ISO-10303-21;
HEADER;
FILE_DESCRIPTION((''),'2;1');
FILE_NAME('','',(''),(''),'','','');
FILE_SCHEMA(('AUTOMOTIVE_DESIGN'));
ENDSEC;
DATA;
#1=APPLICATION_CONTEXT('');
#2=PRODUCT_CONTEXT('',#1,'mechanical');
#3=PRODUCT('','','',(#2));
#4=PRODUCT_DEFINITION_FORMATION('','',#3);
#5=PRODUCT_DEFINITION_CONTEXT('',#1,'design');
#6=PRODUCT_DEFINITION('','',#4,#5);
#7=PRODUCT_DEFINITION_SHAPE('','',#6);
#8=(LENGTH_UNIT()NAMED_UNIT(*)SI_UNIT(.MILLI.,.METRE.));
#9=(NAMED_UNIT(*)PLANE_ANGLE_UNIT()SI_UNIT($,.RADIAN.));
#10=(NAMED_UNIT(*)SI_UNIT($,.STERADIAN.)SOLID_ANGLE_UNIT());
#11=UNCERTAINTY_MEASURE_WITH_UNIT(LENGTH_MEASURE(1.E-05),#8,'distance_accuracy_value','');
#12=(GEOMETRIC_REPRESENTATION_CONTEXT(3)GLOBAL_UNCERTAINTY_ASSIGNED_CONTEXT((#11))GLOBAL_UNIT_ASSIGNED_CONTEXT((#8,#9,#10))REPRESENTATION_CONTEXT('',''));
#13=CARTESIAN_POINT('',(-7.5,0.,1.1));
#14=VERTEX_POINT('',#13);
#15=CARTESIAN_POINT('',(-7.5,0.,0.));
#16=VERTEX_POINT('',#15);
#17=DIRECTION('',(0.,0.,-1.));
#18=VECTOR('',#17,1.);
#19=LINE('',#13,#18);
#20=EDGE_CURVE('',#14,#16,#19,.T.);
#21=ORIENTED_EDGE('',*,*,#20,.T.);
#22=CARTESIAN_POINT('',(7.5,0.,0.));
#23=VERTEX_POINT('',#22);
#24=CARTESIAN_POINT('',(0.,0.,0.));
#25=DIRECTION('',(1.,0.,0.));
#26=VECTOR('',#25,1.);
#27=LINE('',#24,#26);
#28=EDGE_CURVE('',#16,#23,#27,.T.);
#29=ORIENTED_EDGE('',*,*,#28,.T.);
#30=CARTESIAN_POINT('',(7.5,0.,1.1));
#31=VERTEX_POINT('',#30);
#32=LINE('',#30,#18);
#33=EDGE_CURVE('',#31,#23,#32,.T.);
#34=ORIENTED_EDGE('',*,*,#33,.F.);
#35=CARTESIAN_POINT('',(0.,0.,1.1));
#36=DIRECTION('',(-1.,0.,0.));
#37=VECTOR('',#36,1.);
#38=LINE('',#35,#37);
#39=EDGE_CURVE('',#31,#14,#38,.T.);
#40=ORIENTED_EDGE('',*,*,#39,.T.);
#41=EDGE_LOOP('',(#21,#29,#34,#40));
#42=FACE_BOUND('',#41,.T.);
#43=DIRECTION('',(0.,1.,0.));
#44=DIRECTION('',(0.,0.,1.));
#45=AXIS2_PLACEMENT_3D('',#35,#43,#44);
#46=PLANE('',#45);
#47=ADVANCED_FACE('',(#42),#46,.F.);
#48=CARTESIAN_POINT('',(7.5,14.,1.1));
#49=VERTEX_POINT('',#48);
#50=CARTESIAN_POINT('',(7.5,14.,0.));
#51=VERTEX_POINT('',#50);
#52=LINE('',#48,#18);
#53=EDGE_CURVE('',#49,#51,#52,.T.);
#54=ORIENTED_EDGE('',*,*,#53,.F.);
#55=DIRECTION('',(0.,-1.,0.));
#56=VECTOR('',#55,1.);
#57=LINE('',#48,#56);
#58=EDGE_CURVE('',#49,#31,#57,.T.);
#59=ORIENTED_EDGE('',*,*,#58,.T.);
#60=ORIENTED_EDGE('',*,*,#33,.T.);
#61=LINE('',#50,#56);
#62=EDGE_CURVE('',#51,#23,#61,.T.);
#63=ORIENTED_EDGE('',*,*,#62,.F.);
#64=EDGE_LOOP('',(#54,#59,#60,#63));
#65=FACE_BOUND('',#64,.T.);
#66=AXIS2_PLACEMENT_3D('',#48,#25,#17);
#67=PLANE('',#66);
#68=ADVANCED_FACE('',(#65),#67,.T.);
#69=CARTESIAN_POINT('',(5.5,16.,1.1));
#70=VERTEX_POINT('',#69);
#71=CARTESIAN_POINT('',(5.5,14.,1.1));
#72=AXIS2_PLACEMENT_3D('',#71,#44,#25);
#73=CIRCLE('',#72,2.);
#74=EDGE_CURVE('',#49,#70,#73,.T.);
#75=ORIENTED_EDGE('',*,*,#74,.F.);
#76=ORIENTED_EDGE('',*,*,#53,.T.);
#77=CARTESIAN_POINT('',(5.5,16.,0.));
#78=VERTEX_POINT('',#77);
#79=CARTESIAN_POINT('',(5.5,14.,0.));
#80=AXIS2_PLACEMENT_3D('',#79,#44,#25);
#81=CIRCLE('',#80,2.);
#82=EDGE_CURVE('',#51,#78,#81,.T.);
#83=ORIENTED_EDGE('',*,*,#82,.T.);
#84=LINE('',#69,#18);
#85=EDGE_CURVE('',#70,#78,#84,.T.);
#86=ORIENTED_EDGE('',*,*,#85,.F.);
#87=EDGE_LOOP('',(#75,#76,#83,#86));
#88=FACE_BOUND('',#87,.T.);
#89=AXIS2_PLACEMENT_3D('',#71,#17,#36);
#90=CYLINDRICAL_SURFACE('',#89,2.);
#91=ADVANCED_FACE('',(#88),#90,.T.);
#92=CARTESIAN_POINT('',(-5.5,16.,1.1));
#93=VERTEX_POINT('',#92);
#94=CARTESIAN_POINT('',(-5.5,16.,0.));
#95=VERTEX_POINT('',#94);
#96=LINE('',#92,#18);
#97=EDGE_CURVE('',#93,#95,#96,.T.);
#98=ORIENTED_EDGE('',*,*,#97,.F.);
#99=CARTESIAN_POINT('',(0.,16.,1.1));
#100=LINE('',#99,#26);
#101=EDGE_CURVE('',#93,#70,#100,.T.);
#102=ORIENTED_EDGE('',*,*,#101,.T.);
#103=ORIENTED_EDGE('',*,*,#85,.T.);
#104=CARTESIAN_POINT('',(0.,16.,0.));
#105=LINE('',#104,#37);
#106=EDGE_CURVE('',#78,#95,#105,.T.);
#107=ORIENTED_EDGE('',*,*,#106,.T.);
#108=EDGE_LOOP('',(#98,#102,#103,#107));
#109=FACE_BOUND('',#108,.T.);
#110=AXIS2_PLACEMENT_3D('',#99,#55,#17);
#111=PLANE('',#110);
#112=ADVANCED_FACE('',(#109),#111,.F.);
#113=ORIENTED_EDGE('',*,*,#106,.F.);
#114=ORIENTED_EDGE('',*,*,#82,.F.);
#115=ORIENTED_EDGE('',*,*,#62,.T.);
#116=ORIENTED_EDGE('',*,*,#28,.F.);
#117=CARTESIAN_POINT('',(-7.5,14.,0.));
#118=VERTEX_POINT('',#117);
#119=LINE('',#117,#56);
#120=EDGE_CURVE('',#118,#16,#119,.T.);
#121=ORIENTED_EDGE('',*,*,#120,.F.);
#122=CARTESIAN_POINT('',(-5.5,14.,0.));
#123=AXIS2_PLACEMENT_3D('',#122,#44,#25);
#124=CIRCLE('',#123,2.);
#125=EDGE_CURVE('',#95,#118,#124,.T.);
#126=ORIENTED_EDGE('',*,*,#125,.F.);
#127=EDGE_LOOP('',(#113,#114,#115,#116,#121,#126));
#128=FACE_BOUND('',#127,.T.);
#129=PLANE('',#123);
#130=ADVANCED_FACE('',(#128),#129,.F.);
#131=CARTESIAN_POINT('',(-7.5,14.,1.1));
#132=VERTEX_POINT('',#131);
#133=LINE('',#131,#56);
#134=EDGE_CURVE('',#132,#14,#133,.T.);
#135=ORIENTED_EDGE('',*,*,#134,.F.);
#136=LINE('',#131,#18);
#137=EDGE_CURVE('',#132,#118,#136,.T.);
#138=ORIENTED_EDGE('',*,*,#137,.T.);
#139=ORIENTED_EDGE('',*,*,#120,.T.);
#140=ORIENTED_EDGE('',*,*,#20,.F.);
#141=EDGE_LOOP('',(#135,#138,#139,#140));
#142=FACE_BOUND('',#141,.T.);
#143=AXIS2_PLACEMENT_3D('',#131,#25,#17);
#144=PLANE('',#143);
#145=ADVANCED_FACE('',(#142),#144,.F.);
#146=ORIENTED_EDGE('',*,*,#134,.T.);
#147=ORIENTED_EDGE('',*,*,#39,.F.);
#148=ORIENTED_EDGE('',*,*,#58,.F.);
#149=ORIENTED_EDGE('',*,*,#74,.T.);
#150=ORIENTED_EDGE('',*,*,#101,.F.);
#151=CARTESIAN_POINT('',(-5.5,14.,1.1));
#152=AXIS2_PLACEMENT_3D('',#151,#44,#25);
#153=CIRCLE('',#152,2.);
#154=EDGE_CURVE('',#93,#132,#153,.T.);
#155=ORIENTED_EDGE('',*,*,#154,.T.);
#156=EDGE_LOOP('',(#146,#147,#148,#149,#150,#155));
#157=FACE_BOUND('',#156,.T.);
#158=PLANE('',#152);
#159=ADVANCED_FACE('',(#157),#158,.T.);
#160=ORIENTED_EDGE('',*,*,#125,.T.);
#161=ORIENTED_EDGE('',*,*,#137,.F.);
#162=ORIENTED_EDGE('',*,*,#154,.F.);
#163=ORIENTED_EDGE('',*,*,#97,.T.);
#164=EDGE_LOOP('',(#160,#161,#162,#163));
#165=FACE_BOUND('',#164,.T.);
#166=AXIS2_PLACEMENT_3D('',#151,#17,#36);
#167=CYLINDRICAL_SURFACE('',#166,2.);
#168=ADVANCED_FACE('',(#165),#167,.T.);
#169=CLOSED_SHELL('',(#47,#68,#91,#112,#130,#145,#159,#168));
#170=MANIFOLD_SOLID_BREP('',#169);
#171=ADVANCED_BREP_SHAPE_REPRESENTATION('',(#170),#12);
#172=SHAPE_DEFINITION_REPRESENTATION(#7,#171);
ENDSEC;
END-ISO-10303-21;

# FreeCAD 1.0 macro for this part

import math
import FreeCAD as App
import Part
import Sketcher

V = App.Vector
Q = App.Units.Quantity

doc = App.newDocument("Part")
body = doc.addObject("PartDesign::Body", "Body")

sketch1 = doc.addObject("Sketcher::SketchObject", "Sketch")
body.addObject(sketch1)
sketch1.AttachmentSupport = (doc.XY_Plane, [""])
sketch1.MapMode = "FlatFace"
sketch1.addGeometry([
    Part.ArcOfCircle(Part.Circle(V(5.5, 14, 0), V(0, 0, 1), 2), math.radians(0), math.radians(90)),
    Part.LineSegment(V(5.5, 16, 0), V(-5.5, 16, 0)),
    Part.ArcOfCircle(Part.Circle(V(-5.5, 14, 0), V(0, 0, 1), 2), math.radians(90), math.radians(180)),
    Part.LineSegment(V(-7.5, 14, 0), V(-7.5, 0, 0)),
    Part.LineSegment(V(-7.5, 0, 0), V(7.5, 0, 0)),
    Part.LineSegment(V(7.5, 0, 0), V(7.5, 14, 0)),
], False)
sketch1.addConstraint([
    Sketcher.Constraint("Tangent", 0, 2, 1, 1),
    Sketcher.Constraint("Tangent", 1, 2, 2, 1),
    Sketcher.Constraint("Tangent", 2, 2, 3, 1),
    Sketcher.Constraint("Coincident", 3, 2, 4, 1),
    Sketcher.Constraint("Coincident", 4, 2, 5, 1),
    Sketcher.Constraint("Tangent", 5, 2, 0, 1),
    Sketcher.Constraint("Horizontal", 1),
    Sketcher.Constraint("Vertical", 3),
    Sketcher.Constraint("Horizontal", 4),
    Sketcher.Constraint("Vertical", 5),
    Sketcher.Constraint("Equal", 0, 2),
    Sketcher.Constraint("Symmetric", 3, 2, 4, 2, -1, 1),
    Sketcher.Constraint("Radius", 0, Q("2 mm")),
    Sketcher.Constraint("DistanceX", 1, 2, 1, 1, Q("11 mm")),
    Sketcher.Constraint("DistanceY", 3, 2, 3, 1, Q("14 mm")),
])
pad1 = doc.addObject("PartDesign::Pad", "Pad")
body.addObject(pad1)
pad1.Profile = sketch1
pad1.Length = 1.1

doc.recompute()
